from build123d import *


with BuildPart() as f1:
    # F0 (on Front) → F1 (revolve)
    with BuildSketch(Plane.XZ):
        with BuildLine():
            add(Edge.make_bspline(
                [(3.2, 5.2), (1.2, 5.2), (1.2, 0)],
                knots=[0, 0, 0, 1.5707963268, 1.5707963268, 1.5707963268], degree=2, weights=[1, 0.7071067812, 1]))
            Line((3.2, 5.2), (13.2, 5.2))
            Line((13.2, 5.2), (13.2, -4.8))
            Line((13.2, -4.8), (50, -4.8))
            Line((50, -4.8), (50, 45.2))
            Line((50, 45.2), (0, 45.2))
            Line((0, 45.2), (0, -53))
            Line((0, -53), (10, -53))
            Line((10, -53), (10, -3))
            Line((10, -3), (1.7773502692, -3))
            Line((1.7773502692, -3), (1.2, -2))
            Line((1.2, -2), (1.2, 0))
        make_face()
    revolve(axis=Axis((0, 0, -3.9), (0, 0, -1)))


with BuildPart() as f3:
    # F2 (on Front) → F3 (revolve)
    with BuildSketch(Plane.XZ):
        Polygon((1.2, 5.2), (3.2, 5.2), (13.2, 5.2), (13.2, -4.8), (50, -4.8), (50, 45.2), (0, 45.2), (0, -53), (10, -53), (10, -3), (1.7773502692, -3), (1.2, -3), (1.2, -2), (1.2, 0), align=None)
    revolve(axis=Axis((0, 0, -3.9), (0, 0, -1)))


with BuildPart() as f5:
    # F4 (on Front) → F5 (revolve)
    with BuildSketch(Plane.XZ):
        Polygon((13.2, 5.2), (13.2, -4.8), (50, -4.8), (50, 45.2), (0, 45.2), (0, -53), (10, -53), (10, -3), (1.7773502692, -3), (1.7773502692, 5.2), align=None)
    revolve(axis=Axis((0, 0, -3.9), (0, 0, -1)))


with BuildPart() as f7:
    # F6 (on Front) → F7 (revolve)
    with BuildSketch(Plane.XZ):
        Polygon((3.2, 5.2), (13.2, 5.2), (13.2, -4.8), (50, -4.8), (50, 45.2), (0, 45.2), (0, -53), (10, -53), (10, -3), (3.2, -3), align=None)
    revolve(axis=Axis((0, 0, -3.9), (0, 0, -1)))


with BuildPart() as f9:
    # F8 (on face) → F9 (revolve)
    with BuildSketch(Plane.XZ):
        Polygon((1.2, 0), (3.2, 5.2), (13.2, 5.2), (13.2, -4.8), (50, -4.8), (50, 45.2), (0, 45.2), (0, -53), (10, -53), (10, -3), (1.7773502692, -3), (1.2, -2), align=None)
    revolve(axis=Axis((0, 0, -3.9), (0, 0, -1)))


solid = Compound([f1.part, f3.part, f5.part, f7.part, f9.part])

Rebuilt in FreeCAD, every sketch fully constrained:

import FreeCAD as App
import Part
import Sketcher
Q = App.Units.Quantity


def add_polygon(sketch, points):
    """Adds a closed chain of lines whose ends are joined by coincident constraints."""
    first, n = sketch.GeometryCount, len(points)
    for a, b in zip(points, points[1:] + points[:1]):
        sketch.addGeometry(Part.LineSegment(App.Vector(*a, 0), App.Vector(*b, 0)), False)
    for i in range(n):
        sketch.addConstraint(Sketcher.Constraint("Coincident", first + i, 2, first + (i + 1) % n, 1))

doc = App.newDocument("Part")
params = doc.addObject("Spreadsheet::Sheet", "Params")
for row, (alias, value) in enumerate([
    ("sketch1_width", "10 mm"),
    ("sketch1_width2", "50 mm"),
    ("sketch1_height", "2 mm"),
    ("sketch1_height2", "98.2 mm"),
    ("revolution_angle", "360 deg"),
    ("sketch2_width", "12 mm"),
    ("sketch2_width2", "50 mm"),
    ("sketch2_width3", "10 mm"),
    ("sketch2_width4", "36.8 mm"),
    ("sketch2_height", "98.2 mm"),
    ("revolution2_angle", "360 deg"),
    ("sketch3_width", "50 mm"),
    ("sketch3_width2", "10 mm"),
    ("sketch3_width3", "36.8 mm"),
    ("sketch3_height", "98.2 mm"),
    ("revolution3_angle", "360 deg"),
    ("sketch4_width", "10 mm"),
    ("sketch4_width2", "50 mm"),
    ("sketch4_width3", "36.8 mm"),
    ("sketch4_height", "98.2 mm"),
    ("revolution4_angle", "360 deg"),
    ("sketch5_width", "10 mm"),
    ("sketch5_width2", "50 mm"),
    ("sketch5_height", "2 mm"),
    ("sketch5_width3", "36.8 mm"),
    ("sketch5_height2", "98.2 mm"),
    ("revolution5_angle", "360 deg"),
], start=1):
    params.set(f"A{row}", alias)
    params.set(f"B{row}", "=" + value)
    params.setAlias(f"B{row}", alias)

body = doc.addObject("PartDesign::Body", "Body")

# Sketch on XZ plane
sketch1 = body.newObject("Sketcher::SketchObject", "Sketch")
sketch1.AttachmentSupport = (doc.getObject("XZ_Plane"), [""])
sketch1.MapMode = "FlatFace"
sketch1.addGeometry([
    Part.BSplineCurve([App.Vector(3.2, 5.2, 0), App.Vector(1.2, 5.2, 0), App.Vector(1.2, 0, 0)], [3, 3], [0, 1.570796327], False, 2, [1, 0.707106781, 1], False),  # 0
    Part.LineSegment(App.Vector(3.2, 5.2, 0), App.Vector(13.2, 5.2, 0)),  # 1
    Part.LineSegment(App.Vector(13.2, 5.2, 0), App.Vector(13.2, -4.8, 0)),  # 2
    Part.LineSegment(App.Vector(13.2, -4.8, 0), App.Vector(50, -4.8, 0)),  # 3
    Part.LineSegment(App.Vector(50, -4.8, 0), App.Vector(50, 45.2, 0)),  # 4
    Part.LineSegment(App.Vector(50, 45.2, 0), App.Vector(0, 45.2, 0)),  # 5
    Part.LineSegment(App.Vector(0, 45.2, 0), App.Vector(0, -53, 0)),  # 6
    Part.LineSegment(App.Vector(0, -53, 0), App.Vector(10, -53, 0)),  # 7
    Part.LineSegment(App.Vector(10, -53, 0), App.Vector(10, -3, 0)),  # 8
    Part.LineSegment(App.Vector(10, -3, 0), App.Vector(1.77735, -3, 0)),  # 9
    Part.LineSegment(App.Vector(1.77735, -3, 0), App.Vector(1.2, -2, 0)),  # 10
    Part.LineSegment(App.Vector(1.2, -2, 0), App.Vector(1.2, 0, 0)),  # 11
], False)
sketch1.addConstraint([
    Sketcher.Constraint("Block", 0),
    Sketcher.Constraint("Coincident", 0, 1, 1, 1),
    Sketcher.Constraint("Coincident", 1, 2, 2, 1),
    Sketcher.Constraint("Coincident", 2, 2, 3, 1),
    Sketcher.Constraint("Coincident", 3, 2, 4, 1),
    Sketcher.Constraint("Coincident", 4, 2, 5, 1),
    Sketcher.Constraint("Coincident", 5, 2, 6, 1),
    Sketcher.Constraint("Coincident", 6, 2, 7, 1),
    Sketcher.Constraint("Coincident", 7, 2, 8, 1),
    Sketcher.Constraint("Coincident", 8, 2, 9, 1),
    Sketcher.Constraint("Coincident", 9, 2, 10, 1),
    Sketcher.Constraint("Coincident", 10, 2, 11, 1),
    Sketcher.Constraint("Coincident", 11, 2, 0, 2),
    Sketcher.Constraint("Horizontal", 1),
    Sketcher.Constraint("Vertical", 2),
    Sketcher.Constraint("Horizontal", 3),
    Sketcher.Constraint("Vertical", 4),
    Sketcher.Constraint("Horizontal", 5),
    Sketcher.Constraint("Vertical", 6),
    Sketcher.Constraint("Horizontal", 7),
    Sketcher.Constraint("Vertical", 8),
    Sketcher.Constraint("Horizontal", 9),
    Sketcher.Constraint("Vertical", 11),
    Sketcher.Constraint("PointOnObject", 5, 2, -2),
    Sketcher.Constraint("Equal", 1, 7),
    Sketcher.Constraint("Equal", 7, 2),
    Sketcher.Constraint("Equal", 5, 4),
    Sketcher.Constraint("Equal", 4, 8),
    Sketcher.Constraint("DistanceX", 1, 1, 1, 2, Q("10 mm")),
    Sketcher.Constraint("DistanceX", 5, 2, 5, 1, Q("50 mm")),
    Sketcher.Constraint("DistanceY", 11, 1, 11, 2, Q("2 mm")),
    Sketcher.Constraint("Angle", 10, Q("120 deg")),
    Sketcher.Constraint("DistanceY", 6, 2, 6, 1, Q("98.2 mm")),
])
sketch1.setExpression("Constraints[28]", "Params.sketch1_width")
sketch1.setExpression("Constraints[29]", "Params.sketch1_width2")
sketch1.setExpression("Constraints[30]", "Params.sketch1_height")
sketch1.setExpression("Constraints[32]", "Params.sketch1_height2")
revolution = body.newObject("PartDesign::Revolution", "Revolution")
revolution.Profile = sketch1
revolution.ReferenceAxis = (sketch1, ["V_Axis"])
revolution.setExpression("Angle", "Params.revolution_angle")
body2 = doc.addObject("PartDesign::Body", "Body001")

# Sketch on XZ plane
sketch2 = body2.newObject("Sketcher::SketchObject", "Sketch001")
sketch2.AttachmentSupport = (doc.getObject("XZ_Plane001"), [""])
sketch2.MapMode = "FlatFace"
add_polygon(sketch2, [(1, 5), (13, 5), (13, -5), (50, -5), (50, 45), (0, 45), (0, -53), (10, -53), (10, -3), (1, -3)])  # lines 0-9
sketch2.addConstraint([
    Sketcher.Constraint("Horizontal", 0),
    Sketcher.Constraint("Vertical", 1),
    Sketcher.Constraint("Horizontal", 2),
    Sketcher.Constraint("Vertical", 3),
    Sketcher.Constraint("Horizontal", 4),
    Sketcher.Constraint("Vertical", 5),
    Sketcher.Constraint("Horizontal", 6),
    Sketcher.Constraint("Vertical", 7),
    Sketcher.Constraint("Horizontal", 8),
    Sketcher.Constraint("Vertical", 9),
    Sketcher.Constraint("PointOnObject", 4, 2, -2),
    Sketcher.Constraint("Equal", 6, 1),
    Sketcher.Constraint("Equal", 4, 3),
    Sketcher.Constraint("Equal", 3, 7),
    Sketcher.Constraint("DistanceX", 0, 1, 0, 2, Q("12 mm")),
    Sketcher.Constraint("DistanceX", 4, 2, 4, 1, Q("50 mm")),
    Sketcher.Constraint("DistanceX", 6, 1, 6, 2, Q("10 mm")),
    Sketcher.Constraint("DistanceX", 2, 1, 2, 2, Q("36.8 mm")),
    Sketcher.Constraint("DistanceY", 5, 2, 5, 1, Q("98.2 mm")),
    Sketcher.Constraint("DistanceY", 5, 2, -1, 1, Q("53 mm")),
])
sketch2.setExpression("Constraints[24]", "Params.sketch2_width")
sketch2.setExpression("Constraints[25]", "Params.sketch2_width2")
sketch2.setExpression("Constraints[26]", "Params.sketch2_width3")
sketch2.setExpression("Constraints[27]", "Params.sketch2_width4")
sketch2.setExpression("Constraints[28]", "Params.sketch2_height")
revolution2 = body2.newObject("PartDesign::Revolution", "Revolution001")
revolution2.Profile = sketch2
revolution2.ReferenceAxis = (sketch2, ["V_Axis"])
revolution2.setExpression("Angle", "Params.revolution2_angle")
body3 = doc.addObject("PartDesign::Body", "Body002")

# Sketch on XZ plane
sketch3 = body3.newObject("Sketcher::SketchObject", "Sketch002")
sketch3.AttachmentSupport = (doc.getObject("XZ_Plane002"), [""])
sketch3.MapMode = "FlatFace"
add_polygon(sketch3, [(13, 5), (13, -5), (50, -5), (50, 45), (0, 45), (0, -53), (10, -53), (10, -3), (2, -3), (2, 5)])  # lines 0-9
sketch3.addConstraint([
    Sketcher.Constraint("Vertical", 0),
    Sketcher.Constraint("Horizontal", 1),
    Sketcher.Constraint("Vertical", 2),
    Sketcher.Constraint("Horizontal", 3),
    Sketcher.Constraint("Vertical", 4),
    Sketcher.Constraint("Horizontal", 5),
    Sketcher.Constraint("Vertical", 6),
    Sketcher.Constraint("Horizontal", 7),
    Sketcher.Constraint("Vertical", 8),
    Sketcher.Constraint("Horizontal", 9),
    Sketcher.Constraint("PointOnObject", 3, 2, -2),
    Sketcher.Constraint("Equal", 5, 0),
    Sketcher.Constraint("Equal", 3, 2),
    Sketcher.Constraint("Equal", 2, 6),
    Sketcher.Constraint("DistanceX", 3, 2, 3, 1, Q("50 mm")),
    Sketcher.Constraint("DistanceX", 5, 1, 5, 2, Q("10 mm")),
    Sketcher.Constraint("DistanceX", 1, 1, 1, 2, Q("36.8 mm")),
    Sketcher.Constraint("DistanceY", 4, 2, 4, 1, Q("98.2 mm")),
    Sketcher.Constraint("DistanceY", 4, 2, -1, 1, Q("53 mm")),
    Sketcher.Constraint("DistanceX", 7, 2, 7, 1, Q("8.22265 mm")),
])
sketch3.setExpression("Constraints[24]", "Params.sketch3_width")
sketch3.setExpression("Constraints[25]", "Params.sketch3_width2")
sketch3.setExpression("Constraints[26]", "Params.sketch3_width3")
sketch3.setExpression("Constraints[27]", "Params.sketch3_height")
revolution3 = body3.newObject("PartDesign::Revolution", "Revolution002")
revolution3.Profile = sketch3
revolution3.ReferenceAxis = (sketch3, ["V_Axis"])
revolution3.setExpression("Angle", "Params.revolution3_angle")
body4 = doc.addObject("PartDesign::Body", "Body003")

# Sketch on XZ plane
sketch4 = body4.newObject("Sketcher::SketchObject", "Sketch003")
sketch4.AttachmentSupport = (doc.getObject("XZ_Plane003"), [""])
sketch4.MapMode = "FlatFace"
add_polygon(sketch4, [(3, 5), (13, 5), (13, -5), (50, -5), (50, 45), (0, 45), (0, -53), (10, -53), (10, -3), (3, -3)])  # lines 0-9
sketch4.addConstraint([
    Sketcher.Constraint("Horizontal", 0),
    Sketcher.Constraint("Vertical", 1),
    Sketcher.Constraint("Horizontal", 2),
    Sketcher.Constraint("Vertical", 3),
    Sketcher.Constraint("Horizontal", 4),
    Sketcher.Constraint("Vertical", 5),
    Sketcher.Constraint("Horizontal", 6),
    Sketcher.Constraint("Vertical", 7),
    Sketcher.Constraint("Horizontal", 8),
    Sketcher.Constraint("Vertical", 9),
    Sketcher.Constraint("PointOnObject", 4, 2, -2),
    Sketcher.Constraint("Equal", 0, 6),
    Sketcher.Constraint("Equal", 6, 1),
    Sketcher.Constraint("Equal", 4, 3),
    Sketcher.Constraint("Equal", 3, 7),
    Sketcher.Constraint("DistanceX", 0, 1, 0, 2, Q("10 mm")),
    Sketcher.Constraint("DistanceX", 4, 2, 4, 1, Q("50 mm")),
    Sketcher.Constraint("DistanceX", 2, 1, 2, 2, Q("36.8 mm")),
    Sketcher.Constraint("DistanceY", 5, 2, 5, 1, Q("98.2 mm")),
    Sketcher.Constraint("DistanceY", 5, 2, -1, 1, Q("53 mm")),
])
sketch4.setExpression("Constraints[25]", "Params.sketch4_width")
sketch4.setExpression("Constraints[26]", "Params.sketch4_width2")
sketch4.setExpression("Constraints[27]", "Params.sketch4_width3")
sketch4.setExpression("Constraints[28]", "Params.sketch4_height")
revolution4 = body4.newObject("PartDesign::Revolution", "Revolution003")
revolution4.Profile = sketch4
revolution4.ReferenceAxis = (sketch4, ["V_Axis"])
revolution4.setExpression("Angle", "Params.revolution4_angle")
body5 = doc.addObject("PartDesign::Body", "Body004")

# Sketch on XZ plane
sketch5 = body5.newObject("Sketcher::SketchObject", "Sketch004")
sketch5.AttachmentSupport = (doc.getObject("XZ_Plane004"), [""])
sketch5.MapMode = "FlatFace"
add_polygon(sketch5, [(1.2, 0), (3.2, 5.2), (13.2, 5.2), (13.2, -4.8), (50, -4.8), (50, 45.2), (0, 45.2), (0, -53), (10, -53), (10, -3), (1.8, -3), (1.2, -2)])  # lines 0-11
sketch5.addConstraint([
    Sketcher.Constraint("Horizontal", 1),
    Sketcher.Constraint("Vertical", 2),
    Sketcher.Constraint("Horizontal", 3),
    Sketcher.Constraint("Vertical", 4),
    Sketcher.Constraint("Horizontal", 5),
    Sketcher.Constraint("Vertical", 6),
    Sketcher.Constraint("Horizontal", 7),
    Sketcher.Constraint("Vertical", 8),
    Sketcher.Constraint("Horizontal", 9),
    Sketcher.Constraint("Vertical", 11),
    Sketcher.Constraint("PointOnObject", 5, 2, -2),
    Sketcher.Constraint("PointOnObject", 11, 2, -1),
    Sketcher.Constraint("Equal", 1, 7),
    Sketcher.Constraint("Equal", 7, 2),
    Sketcher.Constraint("Equal", 5, 4),
    Sketcher.Constraint("Equal", 4, 8),
    Sketcher.Constraint("DistanceX", 1, 1, 1, 2, Q("10 mm")),
    Sketcher.Constraint("DistanceX", 5, 2, 5, 1, Q("50 mm")),
    Sketcher.Constraint("DistanceY", 11, 1, 11, 2, Q("2 mm")),
    Sketcher.Constraint("Angle", 10, Q("120 deg")),
    Sketcher.Constraint("DistanceX", 3, 1, 3, 2, Q("36.8 mm")),
    Sketcher.Constraint("DistanceY", 6, 2, 6, 1, Q("98.2 mm")),
    Sketcher.Constraint("DistanceY", 6, 2, -1, 1, Q("53 mm")),
    Sketcher.Constraint("DistanceX", 10, 2, 0, 2, Q("2 mm")),
])
sketch5.setExpression("Constraints[28]", "Params.sketch5_width")
sketch5.setExpression("Constraints[29]", "Params.sketch5_width2")
sketch5.setExpression("Constraints[30]", "Params.sketch5_height")
sketch5.setExpression("Constraints[32]", "Params.sketch5_width3")
sketch5.setExpression("Constraints[33]", "Params.sketch5_height2")
revolution5 = body5.newObject("PartDesign::Revolution", "Revolution004")
revolution5.Profile = sketch5
revolution5.ReferenceAxis = (sketch5, ["V_Axis"])
revolution5.setExpression("Angle", "Params.revolution5_angle")

doc.recompute()
